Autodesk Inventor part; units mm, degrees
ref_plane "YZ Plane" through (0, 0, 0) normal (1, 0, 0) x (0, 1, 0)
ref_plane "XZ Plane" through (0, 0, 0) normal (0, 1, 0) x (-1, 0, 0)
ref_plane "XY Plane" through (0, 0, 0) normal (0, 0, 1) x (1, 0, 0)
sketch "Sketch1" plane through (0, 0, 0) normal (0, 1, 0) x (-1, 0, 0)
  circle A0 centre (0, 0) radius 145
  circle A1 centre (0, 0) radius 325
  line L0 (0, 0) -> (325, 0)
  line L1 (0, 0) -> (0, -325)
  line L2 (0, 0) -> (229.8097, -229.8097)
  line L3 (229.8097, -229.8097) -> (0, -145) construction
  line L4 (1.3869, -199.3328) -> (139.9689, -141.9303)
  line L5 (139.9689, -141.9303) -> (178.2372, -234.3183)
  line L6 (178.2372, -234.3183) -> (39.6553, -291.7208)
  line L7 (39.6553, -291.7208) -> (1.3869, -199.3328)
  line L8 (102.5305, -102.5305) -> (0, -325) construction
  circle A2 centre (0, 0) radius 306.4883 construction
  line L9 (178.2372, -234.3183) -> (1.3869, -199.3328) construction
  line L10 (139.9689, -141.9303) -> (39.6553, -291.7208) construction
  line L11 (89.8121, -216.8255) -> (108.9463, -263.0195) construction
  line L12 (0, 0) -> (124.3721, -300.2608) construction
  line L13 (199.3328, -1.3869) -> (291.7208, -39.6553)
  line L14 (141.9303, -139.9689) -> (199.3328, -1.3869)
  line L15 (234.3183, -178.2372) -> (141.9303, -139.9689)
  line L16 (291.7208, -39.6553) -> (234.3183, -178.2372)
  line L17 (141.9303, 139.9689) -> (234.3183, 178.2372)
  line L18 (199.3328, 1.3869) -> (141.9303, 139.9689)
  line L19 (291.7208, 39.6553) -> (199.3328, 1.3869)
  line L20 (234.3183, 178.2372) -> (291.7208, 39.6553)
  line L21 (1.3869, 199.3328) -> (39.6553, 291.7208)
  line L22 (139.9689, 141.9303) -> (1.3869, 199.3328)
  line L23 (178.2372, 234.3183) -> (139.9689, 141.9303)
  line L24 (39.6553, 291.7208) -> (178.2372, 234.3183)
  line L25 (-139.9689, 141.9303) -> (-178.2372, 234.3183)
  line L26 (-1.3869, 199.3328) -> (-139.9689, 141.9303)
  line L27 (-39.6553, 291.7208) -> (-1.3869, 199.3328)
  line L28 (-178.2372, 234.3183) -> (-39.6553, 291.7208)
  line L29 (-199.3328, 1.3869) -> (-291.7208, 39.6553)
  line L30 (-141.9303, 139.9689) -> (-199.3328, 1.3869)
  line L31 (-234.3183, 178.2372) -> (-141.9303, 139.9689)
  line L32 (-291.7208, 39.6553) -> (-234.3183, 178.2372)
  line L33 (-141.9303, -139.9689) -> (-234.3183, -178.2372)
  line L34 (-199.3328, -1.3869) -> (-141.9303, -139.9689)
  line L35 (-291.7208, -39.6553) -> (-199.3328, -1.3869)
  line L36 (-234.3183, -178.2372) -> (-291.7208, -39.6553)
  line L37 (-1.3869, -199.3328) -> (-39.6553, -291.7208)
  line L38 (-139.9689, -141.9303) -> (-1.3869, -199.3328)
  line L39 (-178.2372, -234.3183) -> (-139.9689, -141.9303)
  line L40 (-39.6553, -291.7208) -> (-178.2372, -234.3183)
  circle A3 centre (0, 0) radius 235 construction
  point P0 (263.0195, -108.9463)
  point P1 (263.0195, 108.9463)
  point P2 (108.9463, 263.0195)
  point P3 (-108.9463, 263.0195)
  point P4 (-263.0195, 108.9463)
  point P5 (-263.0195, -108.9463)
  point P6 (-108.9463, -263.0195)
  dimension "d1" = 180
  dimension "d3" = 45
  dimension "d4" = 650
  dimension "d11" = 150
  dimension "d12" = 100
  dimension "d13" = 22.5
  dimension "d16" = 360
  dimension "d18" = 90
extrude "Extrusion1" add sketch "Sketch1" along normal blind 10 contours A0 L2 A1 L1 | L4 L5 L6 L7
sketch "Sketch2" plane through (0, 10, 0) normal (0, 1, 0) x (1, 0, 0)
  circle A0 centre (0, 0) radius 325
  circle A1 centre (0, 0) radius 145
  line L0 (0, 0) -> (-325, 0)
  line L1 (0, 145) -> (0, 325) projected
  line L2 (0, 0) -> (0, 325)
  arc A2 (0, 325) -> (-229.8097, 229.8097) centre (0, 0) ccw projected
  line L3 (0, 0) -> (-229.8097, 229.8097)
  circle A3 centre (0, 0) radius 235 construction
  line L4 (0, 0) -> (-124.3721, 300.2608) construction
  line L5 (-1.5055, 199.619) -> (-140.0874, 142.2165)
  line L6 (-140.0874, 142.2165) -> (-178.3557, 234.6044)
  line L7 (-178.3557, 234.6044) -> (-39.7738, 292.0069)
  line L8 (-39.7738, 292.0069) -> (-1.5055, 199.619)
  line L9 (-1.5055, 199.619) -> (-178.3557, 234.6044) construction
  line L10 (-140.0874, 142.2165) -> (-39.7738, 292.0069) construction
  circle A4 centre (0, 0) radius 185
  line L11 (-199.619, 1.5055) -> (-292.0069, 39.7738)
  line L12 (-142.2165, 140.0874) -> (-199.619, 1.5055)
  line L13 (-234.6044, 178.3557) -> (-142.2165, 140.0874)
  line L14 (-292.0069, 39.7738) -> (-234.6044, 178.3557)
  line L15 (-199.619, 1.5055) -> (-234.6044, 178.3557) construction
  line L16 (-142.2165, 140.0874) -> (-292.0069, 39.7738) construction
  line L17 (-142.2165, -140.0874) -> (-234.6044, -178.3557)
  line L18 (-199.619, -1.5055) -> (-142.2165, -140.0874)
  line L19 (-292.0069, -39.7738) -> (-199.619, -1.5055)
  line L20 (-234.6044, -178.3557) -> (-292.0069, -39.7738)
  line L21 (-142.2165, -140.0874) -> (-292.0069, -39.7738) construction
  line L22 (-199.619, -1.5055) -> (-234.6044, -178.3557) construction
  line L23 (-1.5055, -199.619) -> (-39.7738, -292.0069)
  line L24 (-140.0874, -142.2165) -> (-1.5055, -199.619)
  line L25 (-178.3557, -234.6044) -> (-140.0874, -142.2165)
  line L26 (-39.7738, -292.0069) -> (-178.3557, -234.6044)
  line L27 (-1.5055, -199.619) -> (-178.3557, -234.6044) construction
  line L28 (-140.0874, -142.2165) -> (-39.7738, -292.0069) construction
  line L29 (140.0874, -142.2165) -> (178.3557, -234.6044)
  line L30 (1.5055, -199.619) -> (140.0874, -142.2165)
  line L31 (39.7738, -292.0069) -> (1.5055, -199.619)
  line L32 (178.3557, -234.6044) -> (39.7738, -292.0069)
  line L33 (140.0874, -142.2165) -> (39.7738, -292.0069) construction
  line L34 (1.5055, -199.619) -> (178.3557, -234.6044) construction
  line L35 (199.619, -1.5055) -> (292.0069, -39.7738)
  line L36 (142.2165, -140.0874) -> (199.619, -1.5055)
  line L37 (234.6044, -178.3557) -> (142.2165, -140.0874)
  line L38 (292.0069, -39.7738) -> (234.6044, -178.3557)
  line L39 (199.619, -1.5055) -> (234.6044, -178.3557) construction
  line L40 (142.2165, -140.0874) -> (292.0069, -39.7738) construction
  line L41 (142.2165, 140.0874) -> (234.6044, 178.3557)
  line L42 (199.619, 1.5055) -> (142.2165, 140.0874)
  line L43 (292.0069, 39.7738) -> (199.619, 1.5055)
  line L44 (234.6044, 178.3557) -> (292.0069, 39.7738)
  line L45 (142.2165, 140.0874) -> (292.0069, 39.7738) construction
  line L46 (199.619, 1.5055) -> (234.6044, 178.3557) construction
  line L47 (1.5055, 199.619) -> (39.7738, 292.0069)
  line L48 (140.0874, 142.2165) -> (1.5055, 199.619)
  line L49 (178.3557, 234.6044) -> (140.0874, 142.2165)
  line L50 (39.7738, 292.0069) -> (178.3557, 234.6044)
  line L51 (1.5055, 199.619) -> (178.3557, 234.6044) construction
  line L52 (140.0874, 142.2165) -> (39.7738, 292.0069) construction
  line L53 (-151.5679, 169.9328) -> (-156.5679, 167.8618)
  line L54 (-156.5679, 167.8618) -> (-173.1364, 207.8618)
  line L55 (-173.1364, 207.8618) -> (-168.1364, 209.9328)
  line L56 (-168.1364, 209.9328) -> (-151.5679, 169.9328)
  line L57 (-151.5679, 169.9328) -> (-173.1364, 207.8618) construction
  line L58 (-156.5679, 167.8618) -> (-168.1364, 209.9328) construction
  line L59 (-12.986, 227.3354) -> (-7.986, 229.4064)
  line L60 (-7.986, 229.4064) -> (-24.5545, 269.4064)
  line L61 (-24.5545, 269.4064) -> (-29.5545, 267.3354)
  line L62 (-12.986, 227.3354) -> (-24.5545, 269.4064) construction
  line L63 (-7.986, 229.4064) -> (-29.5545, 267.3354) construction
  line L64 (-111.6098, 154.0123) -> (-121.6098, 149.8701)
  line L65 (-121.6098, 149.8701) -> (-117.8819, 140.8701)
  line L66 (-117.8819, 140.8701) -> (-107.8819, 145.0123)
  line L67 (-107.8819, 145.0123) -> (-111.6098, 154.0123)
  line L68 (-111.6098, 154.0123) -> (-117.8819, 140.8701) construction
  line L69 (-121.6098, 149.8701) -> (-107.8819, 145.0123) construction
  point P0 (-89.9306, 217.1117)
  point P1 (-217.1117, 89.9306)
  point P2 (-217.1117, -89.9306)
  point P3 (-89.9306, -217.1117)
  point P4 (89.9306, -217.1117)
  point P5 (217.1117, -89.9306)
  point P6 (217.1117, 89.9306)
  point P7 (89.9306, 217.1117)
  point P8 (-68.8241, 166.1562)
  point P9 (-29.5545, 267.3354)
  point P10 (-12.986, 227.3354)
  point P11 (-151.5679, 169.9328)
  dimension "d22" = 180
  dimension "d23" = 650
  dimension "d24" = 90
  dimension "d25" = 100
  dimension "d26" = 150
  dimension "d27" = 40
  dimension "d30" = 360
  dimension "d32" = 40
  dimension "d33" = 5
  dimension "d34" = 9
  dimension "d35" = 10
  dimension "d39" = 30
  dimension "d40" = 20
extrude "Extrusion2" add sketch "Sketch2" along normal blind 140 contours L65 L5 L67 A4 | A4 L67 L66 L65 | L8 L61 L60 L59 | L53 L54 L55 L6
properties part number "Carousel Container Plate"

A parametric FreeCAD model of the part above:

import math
import FreeCAD as App
import Part
import Sketcher
from FreeCAD import Vector
Q = App.Units.Quantity


def add_polygon(sketch, points):
    """Adds a closed chain of lines whose ends are joined by coincident constraints."""
    first, n = sketch.GeometryCount, len(points)
    for a, b in zip(points, points[1:] + points[:1]):
        sketch.addGeometry(Part.LineSegment(App.Vector(*a, 0), App.Vector(*b, 0)), False)
    for i in range(n):
        sketch.addConstraint(Sketcher.Constraint("Coincident", first + i, 2, first + (i + 1) % n, 1))

doc = App.newDocument("Part")
body = doc.addObject("PartDesign::Body", "Body")

# Sketch on XZ plane
sketch1 = doc.addObject("Sketcher::SketchObject", "Sketch")
body.addObject(sketch1)
sketch1.AttachmentSupport = (doc.XZ_Plane, [""])
sketch1.MapMode = "FlatFace"
sketch1.addGeometry([
    Part.ArcOfCircle(Part.Circle(Vector(0, 0, 0), Vector(0, 0, 1), 145), math.radians(-135), math.radians(-90)),
    Part.LineSegment(Vector(0, -145, 0), Vector(0, -325, 0)),
    Part.ArcOfCircle(Part.Circle(Vector(0, 0, 0), Vector(0, 0, 1), 325), math.radians(-135), math.radians(-90)),
    Part.LineSegment(Vector(-230, -230, 0), Vector(-103, -103, 0)),
], False)
sketch1.addConstraint([
    Sketcher.Constraint("Coincident", 0, 2, 1, 1),
    Sketcher.Constraint("Coincident", 1, 2, 2, 2),
    Sketcher.Constraint("Coincident", 2, 1, 3, 1),
    Sketcher.Constraint("Coincident", 3, 2, 0, 1),
    Sketcher.Constraint("Vertical", 1),
    Sketcher.Constraint("Coincident", 0, 3, -1, 1),
    Sketcher.Constraint("Coincident", 2, 3, -1, 1),
    Sketcher.Constraint("PointOnObject", 0, 2, -2),
    Sketcher.Constraint("Radius", 2, Q("325 mm")),
    Sketcher.Constraint("DistanceY", 1, 2, 1, 1, Q("180 mm")),
    Sketcher.Constraint("Angle", 3, Q("45 deg")),
    Sketcher.Constraint("DistanceX", 2, 1, -1, 1, Q("229.8097 mm")),
])
pad1 = doc.addObject("PartDesign::Pad", "Pad")
body.addObject(pad1)
pad1.Profile = sketch1
pad1.Length = 10
pad1.Reversed = True

# Sketch on XZ plane
sketch2 = doc.addObject("Sketcher::SketchObject", "Sketch001")
body.addObject(sketch2)
sketch2.AttachmentSupport = (doc.XZ_Plane, [""])
sketch2.MapMode = "FlatFace"
sketch2.AttachmentOffset = App.Placement(Vector(0, 0, -10), App.Rotation())
add_polygon(sketch2, [(-122, -150), (-118, -141), (-108, -145), (-112, -154)])  # lines 0-3
add_polygon(sketch2, [(-30, -267), (-13, -227), (-8, -229), (-25, -269)])  # lines 4-7
add_polygon(sketch2, [(-157, -168), (-152, -170), (-168, -210), (-173, -208)])  # lines 8-11
sketch2.addConstraint([
    Sketcher.Constraint("Perpendicular", 0, 1),
    Sketcher.Constraint("Perpendicular", 1, 2),
    Sketcher.Constraint("Perpendicular", 2, 3),
    Sketcher.Constraint("Perpendicular", 3, 4),
    Sketcher.Constraint("Perpendicular", 4, 5),
    Sketcher.Constraint("Perpendicular", 5, 6),
    Sketcher.Constraint("Perpendicular", 6, 7),
    Sketcher.Constraint("Parallel", 7, 8),
    Sketcher.Constraint("Perpendicular", 8, 9),
    Sketcher.Constraint("Perpendicular", 9, 10),
    Sketcher.Constraint("Perpendicular", 10, 11),
    Sketcher.Constraint("Equal", 7, 8),
    Sketcher.Constraint("Equal", 6, 9),
    Sketcher.Constraint("DistanceX", 0, 2, 1, 2, Q("10 mm")),
    Sketcher.Constraint("DistanceY", 2, 2, 1, 2, Q("9 mm")),
    Sketcher.Constraint("DistanceX", 4, 2, 5, 2, Q("5 mm")),
    Sketcher.Constraint("DistanceY", 6, 2, 5, 2, Q("40 mm")),
    Sketcher.Constraint("Angle", 0, Q("67.5 deg")),
    Sketcher.Constraint("DistanceY", 0, 2, -1, 1, Q("140.87 mm")),
    Sketcher.Constraint("DistanceX", 0, 2, -1, 1, Q("117.882 mm")),
    Sketcher.Constraint("DistanceX", 4, 2, -1, 1, Q("12.986 mm")),
    Sketcher.Constraint("DistanceX", 8, 2, -1, 1, Q("151.568 mm")),
    Sketcher.Constraint("DistanceY", 4, 2, 2, 2, Q("73.323 mm")),
    Sketcher.Constraint("DistanceY", 8, 2, -1, 1, Q("169.9328 mm")),
])
pad2 = doc.addObject("PartDesign::Pad", "Pad001")
body.addObject(pad2)
pad2.Profile = sketch2
pad2.Length = 140
pad2.Reversed = True

doc.recompute()
